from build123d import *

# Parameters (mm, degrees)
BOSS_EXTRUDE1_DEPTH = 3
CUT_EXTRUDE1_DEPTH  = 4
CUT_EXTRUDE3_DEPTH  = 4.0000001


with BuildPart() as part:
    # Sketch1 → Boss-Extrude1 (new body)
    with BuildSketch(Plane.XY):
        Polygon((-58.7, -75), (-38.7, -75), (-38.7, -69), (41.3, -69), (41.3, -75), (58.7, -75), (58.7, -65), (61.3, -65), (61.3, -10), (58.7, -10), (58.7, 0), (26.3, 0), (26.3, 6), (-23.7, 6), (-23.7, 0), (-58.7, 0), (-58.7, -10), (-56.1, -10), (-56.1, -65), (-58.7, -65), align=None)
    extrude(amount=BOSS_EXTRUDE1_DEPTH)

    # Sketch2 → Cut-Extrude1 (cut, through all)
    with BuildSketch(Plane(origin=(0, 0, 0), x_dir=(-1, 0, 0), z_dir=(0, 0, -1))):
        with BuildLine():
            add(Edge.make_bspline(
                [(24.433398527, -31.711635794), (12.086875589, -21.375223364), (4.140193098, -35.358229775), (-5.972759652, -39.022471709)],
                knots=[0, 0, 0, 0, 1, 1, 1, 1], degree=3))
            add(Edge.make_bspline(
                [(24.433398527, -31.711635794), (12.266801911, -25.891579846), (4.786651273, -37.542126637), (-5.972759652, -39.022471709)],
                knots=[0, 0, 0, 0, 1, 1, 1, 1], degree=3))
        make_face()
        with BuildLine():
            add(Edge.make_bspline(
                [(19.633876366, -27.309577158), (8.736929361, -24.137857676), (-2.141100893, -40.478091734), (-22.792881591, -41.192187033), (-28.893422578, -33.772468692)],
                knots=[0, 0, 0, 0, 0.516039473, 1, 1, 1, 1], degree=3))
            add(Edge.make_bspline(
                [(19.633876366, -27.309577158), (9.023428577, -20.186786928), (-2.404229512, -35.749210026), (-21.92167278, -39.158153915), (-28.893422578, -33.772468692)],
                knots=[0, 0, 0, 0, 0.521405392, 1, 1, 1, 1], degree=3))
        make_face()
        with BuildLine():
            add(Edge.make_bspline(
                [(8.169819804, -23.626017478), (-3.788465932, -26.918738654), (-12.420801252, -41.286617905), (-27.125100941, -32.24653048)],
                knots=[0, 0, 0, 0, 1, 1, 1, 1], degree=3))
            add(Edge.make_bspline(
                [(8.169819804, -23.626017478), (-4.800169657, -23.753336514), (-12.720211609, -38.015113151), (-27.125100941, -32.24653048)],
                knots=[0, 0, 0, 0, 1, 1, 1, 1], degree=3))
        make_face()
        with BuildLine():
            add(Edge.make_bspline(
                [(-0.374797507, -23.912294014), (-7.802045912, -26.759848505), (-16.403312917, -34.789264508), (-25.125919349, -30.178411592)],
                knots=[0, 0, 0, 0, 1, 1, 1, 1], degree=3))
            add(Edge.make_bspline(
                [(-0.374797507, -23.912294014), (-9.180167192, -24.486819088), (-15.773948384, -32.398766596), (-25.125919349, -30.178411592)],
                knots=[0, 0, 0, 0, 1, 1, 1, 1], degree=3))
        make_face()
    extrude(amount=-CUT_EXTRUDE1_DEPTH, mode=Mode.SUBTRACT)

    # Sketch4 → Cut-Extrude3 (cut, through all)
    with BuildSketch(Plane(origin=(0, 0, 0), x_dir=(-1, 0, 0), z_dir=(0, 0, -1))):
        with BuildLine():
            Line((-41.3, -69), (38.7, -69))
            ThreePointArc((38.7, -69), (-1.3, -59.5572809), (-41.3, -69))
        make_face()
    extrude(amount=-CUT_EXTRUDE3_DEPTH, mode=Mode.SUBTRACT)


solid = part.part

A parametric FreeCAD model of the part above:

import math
import FreeCAD as App
import Part
import Sketcher
Q = App.Units.Quantity

doc = App.newDocument("Part")
body = doc.addObject("PartDesign::Body", "Body")

sketch1 = body.newObject("Sketcher::SketchObject", "Sketch")
sketch1.AttachmentSupport = (doc.getObject("XY_Plane"), [""])
sketch1.MapMode = "FlatFace"
sketch1.addGeometry(Part.LineSegment(App.Vector(-58.7, -75, 0), App.Vector(-38.7, -75, 0)), False)
sketch1.addGeometry(Part.LineSegment(App.Vector(-38.7, -75, 0), App.Vector(-38.7, -69, 0)), False)
sketch1.addGeometry(Part.LineSegment(App.Vector(-38.7, -69, 0), App.Vector(41.3, -69, 0)), False)
sketch1.addGeometry(Part.LineSegment(App.Vector(41.3, -69, 0), App.Vector(41.3, -75, 0)), False)
sketch1.addGeometry(Part.LineSegment(App.Vector(41.3, -75, 0), App.Vector(58.7, -75, 0)), False)
sketch1.addGeometry(Part.LineSegment(App.Vector(58.7, -75, 0), App.Vector(58.7, -65, 0)), False)
sketch1.addGeometry(Part.LineSegment(App.Vector(58.7, -65, 0), App.Vector(61.3, -65, 0)), False)
sketch1.addGeometry(Part.LineSegment(App.Vector(61.3, -65, 0), App.Vector(61.3, -10, 0)), False)
sketch1.addGeometry(Part.LineSegment(App.Vector(61.3, -10, 0), App.Vector(58.7, -10, 0)), False)
sketch1.addGeometry(Part.LineSegment(App.Vector(58.7, -10, 0), App.Vector(58.7, 0, 0)), False)
sketch1.addGeometry(Part.LineSegment(App.Vector(58.7, 0, 0), App.Vector(26.3, 0, 0)), False)
sketch1.addGeometry(Part.LineSegment(App.Vector(26.3, 0, 0), App.Vector(26.3, 6, 0)), False)
sketch1.addGeometry(Part.LineSegment(App.Vector(26.3, 6, 0), App.Vector(-23.7, 6, 0)), False)
sketch1.addGeometry(Part.LineSegment(App.Vector(-23.7, 6, 0), App.Vector(-23.7, 0, 0)), False)
sketch1.addGeometry(Part.LineSegment(App.Vector(-23.7, 0, 0), App.Vector(-58.7, 0, 0)), False)
sketch1.addGeometry(Part.LineSegment(App.Vector(-58.7, 0, 0), App.Vector(-58.7, -10, 0)), False)
sketch1.addGeometry(Part.LineSegment(App.Vector(-58.7, -10, 0), App.Vector(-56.1, -10, 0)), False)
sketch1.addGeometry(Part.LineSegment(App.Vector(-56.1, -10, 0), App.Vector(-56.1, -65, 0)), False)
sketch1.addGeometry(Part.LineSegment(App.Vector(-56.1, -65, 0), App.Vector(-58.7, -65, 0)), False)
sketch1.addGeometry(Part.LineSegment(App.Vector(-58.7, -65, 0), App.Vector(-58.7, -75, 0)), False)
sketch1.addConstraint(Sketcher.Constraint("Coincident", 0, 2, 1, 1))
sketch1.addConstraint(Sketcher.Constraint("Coincident", 1, 2, 2, 1))
sketch1.addConstraint(Sketcher.Constraint("Coincident", 2, 2, 3, 1))
sketch1.addConstraint(Sketcher.Constraint("Coincident", 3, 2, 4, 1))
sketch1.addConstraint(Sketcher.Constraint("Coincident", 4, 2, 5, 1))
sketch1.addConstraint(Sketcher.Constraint("Coincident", 5, 2, 6, 1))
sketch1.addConstraint(Sketcher.Constraint("Coincident", 6, 2, 7, 1))
sketch1.addConstraint(Sketcher.Constraint("Coincident", 7, 2, 8, 1))
sketch1.addConstraint(Sketcher.Constraint("Coincident", 8, 2, 9, 1))
sketch1.addConstraint(Sketcher.Constraint("Coincident", 9, 2, 10, 1))
sketch1.addConstraint(Sketcher.Constraint("Coincident", 10, 2, 11, 1))
sketch1.addConstraint(Sketcher.Constraint("Coincident", 11, 2, 12, 1))
sketch1.addConstraint(Sketcher.Constraint("Coincident", 12, 2, 13, 1))
sketch1.addConstraint(Sketcher.Constraint("Coincident", 13, 2, 14, 1))
sketch1.addConstraint(Sketcher.Constraint("Coincident", 14, 2, 15, 1))
sketch1.addConstraint(Sketcher.Constraint("Coincident", 15, 2, 16, 1))
sketch1.addConstraint(Sketcher.Constraint("Coincident", 16, 2, 17, 1))
sketch1.addConstraint(Sketcher.Constraint("Coincident", 17, 2, 18, 1))
sketch1.addConstraint(Sketcher.Constraint("Coincident", 18, 2, 19, 1))
sketch1.addConstraint(Sketcher.Constraint("Coincident", 19, 2, 0, 1))
sketch1.addConstraint(Sketcher.Constraint("Horizontal", 0))
sketch1.addConstraint(Sketcher.Constraint("Vertical", 1))
sketch1.addConstraint(Sketcher.Constraint("Horizontal", 2))
sketch1.addConstraint(Sketcher.Constraint("Vertical", 3))
sketch1.addConstraint(Sketcher.Constraint("Horizontal", 4))
sketch1.addConstraint(Sketcher.Constraint("Vertical", 5))
sketch1.addConstraint(Sketcher.Constraint("Horizontal", 6))
sketch1.addConstraint(Sketcher.Constraint("Vertical", 7))
sketch1.addConstraint(Sketcher.Constraint("Horizontal", 8))
sketch1.addConstraint(Sketcher.Constraint("Vertical", 9))
sketch1.addConstraint(Sketcher.Constraint("Horizontal", 10))
sketch1.addConstraint(Sketcher.Constraint("Vertical", 11))
sketch1.addConstraint(Sketcher.Constraint("Horizontal", 12))
sketch1.addConstraint(Sketcher.Constraint("Vertical", 13))
sketch1.addConstraint(Sketcher.Constraint("Horizontal", 14))
sketch1.addConstraint(Sketcher.Constraint("Vertical", 15))
sketch1.addConstraint(Sketcher.Constraint("Horizontal", 16))
sketch1.addConstraint(Sketcher.Constraint("Vertical", 17))
sketch1.addConstraint(Sketcher.Constraint("Horizontal", 18))
sketch1.addConstraint(Sketcher.Constraint("Vertical", 19))
sketch1.addConstraint(Sketcher.Constraint("Symmetric", 9, 2, 14, 2, -1, 1))
sketch1.addConstraint(Sketcher.Constraint("Symmetric", 5, 2, 18, 2, -2))
sketch1.addConstraint(Sketcher.Constraint("PointOnObject", 9, 2, -1))
sketch1.addConstraint(Sketcher.Constraint("Horizontal", 0, 2, 3, 2))
sketch1.addConstraint(Sketcher.Constraint("Horizontal", 8, 2, 15, 2))
sketch1.addConstraint(Sketcher.Constraint("Vertical", 5, 2, 8, 2))
sketch1.addConstraint(Sketcher.Constraint("Equal", 8, 16))
sketch1.addConstraint(Sketcher.Constraint("Equal", 5, 9))
sketch1.addConstraint(Sketcher.Constraint("Equal", 3, 11))
sketch1.addConstraint(Sketcher.Constraint("DistanceX", 0, 1, 0, 2, Q("20 mm")))
sketch1.addConstraint(Sketcher.Constraint("DistanceX", 2, 1, 2, 2, Q("80 mm")))
sketch1.addConstraint(Sketcher.Constraint("DistanceX", 12, 2, 12, 1, Q("50 mm")))
sketch1.addConstraint(Sketcher.Constraint("DistanceX", 14, 2, 14, 1, Q("35 mm")))
sketch1.addConstraint(Sketcher.Constraint("DistanceY", 1, 1, 1, 2, Q("6 mm")))
sketch1.addConstraint(Sketcher.Constraint("DistanceY", 5, 1, 5, 2, Q("10 mm")))
sketch1.addConstraint(Sketcher.Constraint("DistanceY", 7, 1, 7, 2, Q("55 mm")))
sketch1.addConstraint(Sketcher.Constraint("DistanceX", 4, 1, 4, 2, Q("17.4 mm")))
sketch1.addConstraint(Sketcher.Constraint("DistanceX", 6, 1, 6, 2, Q("2.6 mm")))
pad1 = body.newObject("PartDesign::Pad", "Pad")
pad1.Profile = sketch1
pad1.Length = 3

sketch2 = body.newObject("Sketcher::SketchObject", "Sketch001")
sketch2.AttachmentSupport = (doc.getObject("XY_Plane"), [""])
sketch2.MapMode = "FlatFace"
sketch2.addGeometry(Part.BSplineCurve([App.Vector(-24.433399, -31.711636, 0), App.Vector(-12.086876, -21.375223, 0), App.Vector(-4.140193, -35.35823, 0), App.Vector(5.97276, -39.022472, 0)], [4, 4], [0, 1], False, 3, [1, 1, 1, 1], False), False)
sketch2.addGeometry(Part.BSplineCurve([App.Vector(-24.433399, -31.711636, 0), App.Vector(-12.266802, -25.89158, 0), App.Vector(-4.786651, -37.542127, 0), App.Vector(5.97276, -39.022472, 0)], [4, 4], [0, 1], False, 3, [1, 1, 1, 1], False), False)
sketch2.addGeometry(Part.BSplineCurve([App.Vector(-19.633876, -27.309577, 0), App.Vector(-8.736929, -24.137858, 0), App.Vector(2.141101, -40.478092, 0), App.Vector(22.792882, -41.192187, 0), App.Vector(28.893423, -33.772469, 0)], [4, 1, 4], [0, 0.516039473, 1], False, 3, [1, 1, 1, 1, 1], False), False)
sketch2.addGeometry(Part.BSplineCurve([App.Vector(-19.633876, -27.309577, 0), App.Vector(-9.023429, -20.186787, 0), App.Vector(2.40423, -35.74921, 0), App.Vector(21.921673, -39.158154, 0), App.Vector(28.893423, -33.772469, 0)], [4, 1, 4], [0, 0.521405392, 1], False, 3, [1, 1, 1, 1, 1], False), False)
sketch2.addGeometry(Part.BSplineCurve([App.Vector(-8.16982, -23.626017, 0), App.Vector(3.788466, -26.918739, 0), App.Vector(12.420801, -41.286618, 0), App.Vector(27.125101, -32.24653, 0)], [4, 4], [0, 1], False, 3, [1, 1, 1, 1], False), False)
sketch2.addGeometry(Part.BSplineCurve([App.Vector(-8.16982, -23.626017, 0), App.Vector(4.80017, -23.753337, 0), App.Vector(12.720212, -38.015113, 0), App.Vector(27.125101, -32.24653, 0)], [4, 4], [0, 1], False, 3, [1, 1, 1, 1], False), False)
sketch2.addGeometry(Part.BSplineCurve([App.Vector(0.374798, -23.912294, 0), App.Vector(7.802046, -26.759849, 0), App.Vector(16.403313, -34.789265, 0), App.Vector(25.125919, -30.178412, 0)], [4, 4], [0, 1], False, 3, [1, 1, 1, 1], False), False)
sketch2.addGeometry(Part.BSplineCurve([App.Vector(0.374798, -23.912294, 0), App.Vector(9.180167, -24.486819, 0), App.Vector(15.773948, -32.398767, 0), App.Vector(25.125919, -30.178412, 0)], [4, 4], [0, 1], False, 3, [1, 1, 1, 1], False), False)
sketch2.addConstraint(Sketcher.Constraint("Block", 0))
sketch2.addConstraint(Sketcher.Constraint("Block", 1))
sketch2.addConstraint(Sketcher.Constraint("Block", 2))
sketch2.addConstraint(Sketcher.Constraint("Block", 3))
sketch2.addConstraint(Sketcher.Constraint("Block", 4))
sketch2.addConstraint(Sketcher.Constraint("Block", 5))
sketch2.addConstraint(Sketcher.Constraint("Block", 6))
sketch2.addConstraint(Sketcher.Constraint("Block", 7))
pocket1 = body.newObject("PartDesign::Pocket", "Pocket")
pocket1.Profile = sketch2
pocket1.Type = "ThroughAll"
pocket1.Reversed = True

sketch3 = body.newObject("Sketcher::SketchObject", "Sketch002")
sketch3.AttachmentSupport = (doc.getObject("XY_Plane"), [""])
sketch3.MapMode = "FlatFace"
sketch3.addGeometry(Part.LineSegment(App.Vector(41, -69, 0), App.Vector(-39, -69, 0)), False)
sketch3.addGeometry(Part.ArcOfCircle(Part.Circle(App.Vector(1, -149, 0), App.Vector(0, 0, 1), 89), math.radians(63), math.radians(117)), False)
sketch3.addConstraint(Sketcher.Constraint("Coincident", 0, 1, 1, 1))
sketch3.addConstraint(Sketcher.Constraint("Coincident", 1, 2, 0, 2))
sketch3.addConstraint(Sketcher.Constraint("Horizontal", 0))
sketch3.addConstraint(Sketcher.Constraint("DistanceX", 0, 2, 0, 1, Q("80 mm")))
sketch3.addConstraint(Sketcher.Constraint("DistanceY", 1, 3, -1, 1, Q("149 mm")))
sketch3.addConstraint(Sketcher.Constraint("DistanceY", 0, 1, -1, 1, Q("69 mm")))
sketch3.addConstraint(Sketcher.Constraint("DistanceX", -1, 1, 1, 3, Q("1.3 mm")))
pocket2 = body.newObject("PartDesign::Pocket", "Pocket001")
pocket2.Profile = sketch3
pocket2.Type = "ThroughAll"
pocket2.Reversed = True

doc.recompute()
